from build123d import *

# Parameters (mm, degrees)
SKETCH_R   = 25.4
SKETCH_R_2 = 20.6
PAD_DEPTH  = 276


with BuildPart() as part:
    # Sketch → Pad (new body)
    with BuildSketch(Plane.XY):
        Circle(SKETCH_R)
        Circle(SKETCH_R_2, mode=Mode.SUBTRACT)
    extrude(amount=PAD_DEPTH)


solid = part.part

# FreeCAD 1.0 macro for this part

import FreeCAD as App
import Part
import Sketcher
from FreeCAD import Vector
Q = App.Units.Quantity

doc = App.newDocument("Part")
body = doc.addObject("PartDesign::Body", "Body")

sketch1 = doc.addObject("Sketcher::SketchObject", "Sketch")
body.addObject(sketch1)
sketch1.AttachmentSupport = (doc.XY_Plane, [""])
sketch1.MapMode = "FlatFace"
sketch1.addGeometry(Part.Circle(Vector(0, 0, 0), Vector(0, 0, 1), 25), False)
sketch1.addGeometry(Part.Circle(Vector(0, 0, 0), Vector(0, 0, 1), 21), False)
sketch1.addConstraint(Sketcher.Constraint("Coincident", 0, 3, -1, 1))
sketch1.addConstraint(Sketcher.Constraint("Coincident", 1, 3, -1, 1))
sketch1.addConstraint(Sketcher.Constraint("Diameter", 0, Q("50.8 mm")))
sketch1.addConstraint(Sketcher.Constraint("Diameter", 1, Q("41.2 mm")))
pad1 = doc.addObject("PartDesign::Pad", "Pad")
body.addObject(pad1)
pad1.Profile = sketch1
pad1.Length = 276

doc.recompute()
